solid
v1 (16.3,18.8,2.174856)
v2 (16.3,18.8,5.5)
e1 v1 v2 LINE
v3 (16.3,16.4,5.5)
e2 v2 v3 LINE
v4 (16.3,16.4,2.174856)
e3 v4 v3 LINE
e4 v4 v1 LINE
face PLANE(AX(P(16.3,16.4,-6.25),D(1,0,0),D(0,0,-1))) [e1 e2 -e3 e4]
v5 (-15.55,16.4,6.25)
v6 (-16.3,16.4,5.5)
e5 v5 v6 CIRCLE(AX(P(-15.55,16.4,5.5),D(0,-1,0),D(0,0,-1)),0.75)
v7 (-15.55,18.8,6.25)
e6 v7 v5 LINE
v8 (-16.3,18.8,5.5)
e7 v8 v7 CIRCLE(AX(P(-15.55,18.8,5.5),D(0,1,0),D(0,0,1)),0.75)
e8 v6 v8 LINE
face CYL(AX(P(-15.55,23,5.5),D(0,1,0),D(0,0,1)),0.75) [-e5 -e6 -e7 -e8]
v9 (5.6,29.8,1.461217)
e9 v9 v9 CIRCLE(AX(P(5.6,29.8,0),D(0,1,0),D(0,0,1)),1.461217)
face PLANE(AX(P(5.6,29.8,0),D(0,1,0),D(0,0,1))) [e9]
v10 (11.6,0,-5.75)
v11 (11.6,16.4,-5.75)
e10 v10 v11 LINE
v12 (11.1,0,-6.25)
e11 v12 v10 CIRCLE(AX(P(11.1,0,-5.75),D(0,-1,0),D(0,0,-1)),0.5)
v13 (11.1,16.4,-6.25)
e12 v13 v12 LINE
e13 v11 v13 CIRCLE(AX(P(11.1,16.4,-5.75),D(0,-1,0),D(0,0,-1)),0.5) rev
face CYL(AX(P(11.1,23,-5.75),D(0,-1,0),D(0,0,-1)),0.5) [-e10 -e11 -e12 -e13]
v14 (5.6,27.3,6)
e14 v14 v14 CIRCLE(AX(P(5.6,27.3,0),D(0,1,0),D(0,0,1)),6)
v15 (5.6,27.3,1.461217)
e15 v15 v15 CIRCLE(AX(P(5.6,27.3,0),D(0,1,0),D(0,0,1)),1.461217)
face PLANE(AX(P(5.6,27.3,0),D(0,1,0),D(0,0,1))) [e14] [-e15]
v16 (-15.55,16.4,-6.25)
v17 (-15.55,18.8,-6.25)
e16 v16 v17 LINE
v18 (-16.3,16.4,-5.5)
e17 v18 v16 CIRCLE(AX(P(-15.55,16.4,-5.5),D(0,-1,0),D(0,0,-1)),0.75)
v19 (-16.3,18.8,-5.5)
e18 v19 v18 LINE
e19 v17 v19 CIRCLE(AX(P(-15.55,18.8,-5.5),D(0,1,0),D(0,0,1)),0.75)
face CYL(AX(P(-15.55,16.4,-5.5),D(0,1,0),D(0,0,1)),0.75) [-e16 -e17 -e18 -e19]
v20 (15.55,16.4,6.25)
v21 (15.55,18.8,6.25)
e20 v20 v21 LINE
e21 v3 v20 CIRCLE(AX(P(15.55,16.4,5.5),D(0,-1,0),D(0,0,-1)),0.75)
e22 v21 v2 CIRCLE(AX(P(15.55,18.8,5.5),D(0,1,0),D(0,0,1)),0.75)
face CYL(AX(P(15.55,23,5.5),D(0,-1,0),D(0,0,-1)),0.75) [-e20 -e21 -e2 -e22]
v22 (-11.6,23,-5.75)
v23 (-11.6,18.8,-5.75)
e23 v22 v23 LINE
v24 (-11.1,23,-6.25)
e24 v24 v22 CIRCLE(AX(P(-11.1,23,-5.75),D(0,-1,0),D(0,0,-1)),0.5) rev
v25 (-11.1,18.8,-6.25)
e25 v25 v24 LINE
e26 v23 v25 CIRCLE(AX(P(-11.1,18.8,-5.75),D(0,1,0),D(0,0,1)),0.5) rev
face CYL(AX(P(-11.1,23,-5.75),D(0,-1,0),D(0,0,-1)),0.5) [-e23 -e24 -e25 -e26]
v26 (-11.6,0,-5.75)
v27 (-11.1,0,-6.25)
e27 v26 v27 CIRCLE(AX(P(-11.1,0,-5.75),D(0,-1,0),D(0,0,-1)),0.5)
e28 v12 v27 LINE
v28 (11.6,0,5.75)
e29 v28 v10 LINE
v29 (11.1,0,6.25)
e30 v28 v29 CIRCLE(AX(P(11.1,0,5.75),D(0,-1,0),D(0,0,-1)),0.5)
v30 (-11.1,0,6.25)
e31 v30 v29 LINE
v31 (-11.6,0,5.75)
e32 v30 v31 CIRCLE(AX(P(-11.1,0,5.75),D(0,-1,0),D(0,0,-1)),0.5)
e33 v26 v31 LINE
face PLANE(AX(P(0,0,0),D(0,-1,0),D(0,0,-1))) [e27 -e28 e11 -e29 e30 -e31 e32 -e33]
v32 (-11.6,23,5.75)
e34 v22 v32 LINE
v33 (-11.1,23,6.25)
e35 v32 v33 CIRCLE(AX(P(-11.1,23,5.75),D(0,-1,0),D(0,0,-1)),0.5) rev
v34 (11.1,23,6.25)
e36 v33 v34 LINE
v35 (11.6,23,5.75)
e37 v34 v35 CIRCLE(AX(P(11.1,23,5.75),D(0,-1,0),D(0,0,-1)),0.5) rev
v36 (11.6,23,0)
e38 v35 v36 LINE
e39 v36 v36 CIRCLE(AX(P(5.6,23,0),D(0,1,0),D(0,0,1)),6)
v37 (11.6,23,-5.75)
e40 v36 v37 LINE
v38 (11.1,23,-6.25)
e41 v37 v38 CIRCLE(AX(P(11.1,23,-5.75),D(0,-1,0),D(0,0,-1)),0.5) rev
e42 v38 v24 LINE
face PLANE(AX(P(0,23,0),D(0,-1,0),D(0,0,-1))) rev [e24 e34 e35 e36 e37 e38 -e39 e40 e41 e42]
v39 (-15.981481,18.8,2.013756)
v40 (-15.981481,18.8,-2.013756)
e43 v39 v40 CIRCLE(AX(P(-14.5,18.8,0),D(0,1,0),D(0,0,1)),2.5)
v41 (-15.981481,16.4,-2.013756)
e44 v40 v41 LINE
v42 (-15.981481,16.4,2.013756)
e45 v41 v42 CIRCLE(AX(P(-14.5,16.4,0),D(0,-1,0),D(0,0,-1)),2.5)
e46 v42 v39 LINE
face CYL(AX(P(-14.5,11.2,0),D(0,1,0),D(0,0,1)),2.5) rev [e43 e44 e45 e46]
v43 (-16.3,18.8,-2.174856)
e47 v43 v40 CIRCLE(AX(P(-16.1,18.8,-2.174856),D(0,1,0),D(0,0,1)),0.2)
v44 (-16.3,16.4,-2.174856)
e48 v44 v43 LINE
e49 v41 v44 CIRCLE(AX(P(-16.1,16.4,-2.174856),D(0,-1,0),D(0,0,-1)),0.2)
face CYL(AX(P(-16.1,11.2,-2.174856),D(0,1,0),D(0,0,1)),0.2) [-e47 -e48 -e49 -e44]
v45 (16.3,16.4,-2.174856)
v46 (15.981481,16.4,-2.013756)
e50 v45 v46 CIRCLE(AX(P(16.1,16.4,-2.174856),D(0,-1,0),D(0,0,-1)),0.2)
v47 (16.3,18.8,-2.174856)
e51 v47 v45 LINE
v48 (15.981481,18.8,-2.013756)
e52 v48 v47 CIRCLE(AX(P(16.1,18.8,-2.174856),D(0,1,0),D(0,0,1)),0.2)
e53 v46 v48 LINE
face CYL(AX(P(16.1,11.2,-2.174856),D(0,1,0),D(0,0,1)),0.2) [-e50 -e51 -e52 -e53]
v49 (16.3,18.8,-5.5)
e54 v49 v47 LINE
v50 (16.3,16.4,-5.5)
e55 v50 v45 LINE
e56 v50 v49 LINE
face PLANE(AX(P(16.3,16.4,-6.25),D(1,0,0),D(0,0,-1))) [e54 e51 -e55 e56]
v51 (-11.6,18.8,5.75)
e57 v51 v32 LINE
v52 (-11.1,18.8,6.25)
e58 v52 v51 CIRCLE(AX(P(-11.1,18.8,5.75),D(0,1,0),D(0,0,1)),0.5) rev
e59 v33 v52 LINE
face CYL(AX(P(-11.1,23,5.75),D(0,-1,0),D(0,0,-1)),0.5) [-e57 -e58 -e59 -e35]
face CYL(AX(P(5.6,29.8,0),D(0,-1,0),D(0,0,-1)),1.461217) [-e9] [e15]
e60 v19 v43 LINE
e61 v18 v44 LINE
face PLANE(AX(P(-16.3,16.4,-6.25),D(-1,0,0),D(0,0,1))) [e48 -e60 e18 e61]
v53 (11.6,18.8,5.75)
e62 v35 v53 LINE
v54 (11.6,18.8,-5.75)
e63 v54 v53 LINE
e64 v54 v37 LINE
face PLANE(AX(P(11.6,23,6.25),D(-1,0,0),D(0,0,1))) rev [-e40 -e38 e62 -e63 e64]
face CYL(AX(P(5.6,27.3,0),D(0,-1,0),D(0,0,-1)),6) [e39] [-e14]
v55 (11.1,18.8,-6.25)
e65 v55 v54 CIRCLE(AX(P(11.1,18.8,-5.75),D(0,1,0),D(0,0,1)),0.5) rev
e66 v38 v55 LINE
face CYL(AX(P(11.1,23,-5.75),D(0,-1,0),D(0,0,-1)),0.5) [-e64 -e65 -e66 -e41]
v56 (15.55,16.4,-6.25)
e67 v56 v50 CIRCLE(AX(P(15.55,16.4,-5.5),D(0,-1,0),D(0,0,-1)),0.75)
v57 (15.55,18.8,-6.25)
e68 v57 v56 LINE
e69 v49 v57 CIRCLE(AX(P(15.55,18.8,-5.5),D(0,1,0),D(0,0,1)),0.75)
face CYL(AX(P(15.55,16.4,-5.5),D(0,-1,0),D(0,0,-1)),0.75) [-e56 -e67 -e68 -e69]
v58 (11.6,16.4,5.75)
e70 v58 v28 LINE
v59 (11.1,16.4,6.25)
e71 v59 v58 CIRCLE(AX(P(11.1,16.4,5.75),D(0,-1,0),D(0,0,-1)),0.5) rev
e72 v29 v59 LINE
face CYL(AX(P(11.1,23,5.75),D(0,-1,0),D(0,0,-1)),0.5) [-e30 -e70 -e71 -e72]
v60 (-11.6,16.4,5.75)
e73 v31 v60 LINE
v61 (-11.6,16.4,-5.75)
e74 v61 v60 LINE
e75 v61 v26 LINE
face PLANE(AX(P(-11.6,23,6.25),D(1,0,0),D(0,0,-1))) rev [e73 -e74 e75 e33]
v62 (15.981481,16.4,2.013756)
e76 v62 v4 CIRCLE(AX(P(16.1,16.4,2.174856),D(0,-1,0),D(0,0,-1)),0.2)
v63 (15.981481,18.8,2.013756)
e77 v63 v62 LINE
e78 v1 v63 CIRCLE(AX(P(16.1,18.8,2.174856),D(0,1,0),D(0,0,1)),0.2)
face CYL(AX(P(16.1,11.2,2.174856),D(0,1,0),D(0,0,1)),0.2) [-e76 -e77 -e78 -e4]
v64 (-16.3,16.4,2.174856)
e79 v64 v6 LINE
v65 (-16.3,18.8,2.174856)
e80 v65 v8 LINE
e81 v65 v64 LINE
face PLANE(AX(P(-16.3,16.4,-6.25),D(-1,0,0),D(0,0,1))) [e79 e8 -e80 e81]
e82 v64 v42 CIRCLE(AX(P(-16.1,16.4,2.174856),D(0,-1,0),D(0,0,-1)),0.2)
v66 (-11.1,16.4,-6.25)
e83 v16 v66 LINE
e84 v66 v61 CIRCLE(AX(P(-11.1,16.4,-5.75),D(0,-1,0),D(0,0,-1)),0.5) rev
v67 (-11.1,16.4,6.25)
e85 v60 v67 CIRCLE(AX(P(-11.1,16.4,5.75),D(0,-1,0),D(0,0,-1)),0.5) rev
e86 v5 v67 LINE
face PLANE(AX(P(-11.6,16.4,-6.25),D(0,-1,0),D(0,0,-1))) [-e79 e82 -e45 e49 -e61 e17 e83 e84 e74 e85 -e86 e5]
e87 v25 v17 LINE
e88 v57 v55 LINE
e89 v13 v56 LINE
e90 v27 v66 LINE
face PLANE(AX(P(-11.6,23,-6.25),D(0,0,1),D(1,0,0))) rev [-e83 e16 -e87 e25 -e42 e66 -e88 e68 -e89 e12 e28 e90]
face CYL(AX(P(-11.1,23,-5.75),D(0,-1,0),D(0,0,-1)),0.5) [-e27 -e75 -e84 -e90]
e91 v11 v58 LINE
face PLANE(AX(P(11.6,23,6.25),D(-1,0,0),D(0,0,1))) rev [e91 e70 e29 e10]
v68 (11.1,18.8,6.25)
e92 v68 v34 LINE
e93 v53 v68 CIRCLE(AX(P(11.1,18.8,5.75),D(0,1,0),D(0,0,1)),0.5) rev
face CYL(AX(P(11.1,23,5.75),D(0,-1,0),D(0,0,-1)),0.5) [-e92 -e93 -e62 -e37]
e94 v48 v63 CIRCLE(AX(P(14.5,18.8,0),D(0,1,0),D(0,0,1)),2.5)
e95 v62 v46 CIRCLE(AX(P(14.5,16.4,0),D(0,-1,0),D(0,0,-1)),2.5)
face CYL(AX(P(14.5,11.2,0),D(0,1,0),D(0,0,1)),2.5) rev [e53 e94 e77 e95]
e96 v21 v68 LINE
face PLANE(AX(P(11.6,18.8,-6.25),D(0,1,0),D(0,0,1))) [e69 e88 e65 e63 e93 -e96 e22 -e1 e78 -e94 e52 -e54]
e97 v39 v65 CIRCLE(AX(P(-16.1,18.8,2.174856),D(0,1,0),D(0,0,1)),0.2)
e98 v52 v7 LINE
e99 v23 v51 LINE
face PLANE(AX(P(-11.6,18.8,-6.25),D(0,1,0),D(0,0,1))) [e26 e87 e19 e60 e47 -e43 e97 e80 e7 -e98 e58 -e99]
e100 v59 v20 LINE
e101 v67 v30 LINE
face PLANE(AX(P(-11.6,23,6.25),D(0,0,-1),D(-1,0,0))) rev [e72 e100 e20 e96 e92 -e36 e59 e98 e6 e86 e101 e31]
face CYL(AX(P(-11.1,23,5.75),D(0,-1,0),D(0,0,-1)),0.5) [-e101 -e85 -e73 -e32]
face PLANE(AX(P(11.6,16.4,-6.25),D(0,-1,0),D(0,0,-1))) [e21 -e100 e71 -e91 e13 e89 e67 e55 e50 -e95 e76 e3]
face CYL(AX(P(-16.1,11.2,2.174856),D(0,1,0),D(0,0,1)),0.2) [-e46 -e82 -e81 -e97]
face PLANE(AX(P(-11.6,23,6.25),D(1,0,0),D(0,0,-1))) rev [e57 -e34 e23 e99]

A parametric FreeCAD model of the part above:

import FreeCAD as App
import Part
import Sketcher


def edges_at(feature, points):
    """Names of the edges that pass closest to the given points."""
    edges = feature.Shape.Edges
    near = lambda p: min(range(len(edges)), key=lambda i: edges[i].distToShape(Part.Vertex(*p))[0])
    return sorted({f"Edge{near(p) + 1}" for p in points})

doc = App.newDocument("Part")
body = doc.addObject("PartDesign::Body", "Body")

# Sketch on XZ plane
sketch1 = doc.addObject("Sketcher::SketchObject", "Sketch")
body.addObject(sketch1)
sketch1.AttachmentSupport = (doc.XZ_Plane, [""])
sketch1.MapMode = "FlatFace"
sketch1.addGeometry([
    Part.LineSegment(App.Vector(-12, -6, 0), App.Vector(-12, 6, 0)),
    Part.LineSegment(App.Vector(-12, 6, 0), App.Vector(12, 6, 0)),
    Part.LineSegment(App.Vector(12, 6, 0), App.Vector(12, -6, 0)),
    Part.LineSegment(App.Vector(12, -6, 0), App.Vector(-12, -6, 0)),
], False)
sketch1.addConstraint([
    Sketcher.Constraint("Coincident", 0, 2, 1, 1),
    Sketcher.Constraint("Coincident", 1, 2, 2, 1),
    Sketcher.Constraint("Coincident", 2, 2, 3, 1),
    Sketcher.Constraint("Coincident", 3, 2, 0, 1),
    Sketcher.Constraint("Vertical", 0),
    Sketcher.Constraint("Horizontal", 1),
    Sketcher.Constraint("Vertical", 2),
    Sketcher.Constraint("Horizontal", 3),
    Sketcher.Constraint("Symmetric", 0, 2, 2, 2, -1, 1),
    Sketcher.Constraint("DistanceX", 1, 1, 1, 2, 23.2),
    Sketcher.Constraint("DistanceY", 0, 1, 0, 2, 12.5),
])
pad1 = doc.addObject("PartDesign::Pad", "Pad")
body.addObject(pad1)
pad1.Profile = sketch1
pad1.Length = 23
pad1.Reversed = True

# Sketch on XY plane
sketch2 = doc.addObject("Sketcher::SketchObject", "Sketch001")
body.addObject(sketch2)
sketch2.AttachmentSupport = (doc.XY_Plane, [""])
sketch2.MapMode = "FlatFace"
sketch2.AttachmentOffset = App.Placement(App.Vector(0, 0, 6.25), App.Rotation())
sketch2.addGeometry([
    Part.LineSegment(App.Vector(11.6, 18.8, 0), App.Vector(11.6, 16.4, 0)),  # 0
    Part.LineSegment(App.Vector(11.6, 16.4, 0), App.Vector(16.3, 16.4, 0)),  # 1
    Part.LineSegment(App.Vector(16.3, 16.4, 0), App.Vector(16.3, 18.8, 0)),  # 2
    Part.LineSegment(App.Vector(16.3, 18.8, 0), App.Vector(11.6, 18.8, 0)),  # 3
    Part.LineSegment(App.Vector(-16.3, 18.8, 0), App.Vector(-16.3, 16.4, 0)),  # 4
    Part.LineSegment(App.Vector(-16.3, 16.4, 0), App.Vector(-11.6, 16.4, 0)),  # 5
    Part.LineSegment(App.Vector(-11.6, 16.4, 0), App.Vector(-11.6, 18.8, 0)),  # 6
    Part.LineSegment(App.Vector(-11.6, 18.8, 0), App.Vector(-16.3, 18.8, 0)),  # 7
], False)
sketch2.addConstraint([
    Sketcher.Constraint("Coincident", 0, 2, 1, 1),
    Sketcher.Constraint("Coincident", 1, 2, 2, 1),
    Sketcher.Constraint("Coincident", 2, 2, 3, 1),
    Sketcher.Constraint("Coincident", 3, 2, 0, 1),
    Sketcher.Constraint("Coincident", 4, 2, 5, 1),
    Sketcher.Constraint("Coincident", 5, 2, 6, 1),
    Sketcher.Constraint("Coincident", 6, 2, 7, 1),
    Sketcher.Constraint("Coincident", 7, 2, 4, 1),
    Sketcher.Constraint("Vertical", 0),
    Sketcher.Constraint("Horizontal", 1),
    Sketcher.Constraint("Vertical", 2),
    Sketcher.Constraint("Horizontal", 3),
    Sketcher.Constraint("Vertical", 4),
    Sketcher.Constraint("Horizontal", 5),
    Sketcher.Constraint("Vertical", 6),
    Sketcher.Constraint("Horizontal", 7),
    Sketcher.Constraint("Symmetric", 1, 2, 4, 2, -2),
    Sketcher.Constraint("Symmetric", 3, 2, 6, 2, -2),
    Sketcher.Constraint("DistanceX", 1, 1, 1, 2, 4.7),
    Sketcher.Constraint("DistanceY", 0, 2, 0, 1, 2.4),
    Sketcher.Constraint("DistanceX", -1, 1, 0, 2, 11.6),
    Sketcher.Constraint("DistanceY", -1, 1, 0, 2, 16.4),
])
pad2 = doc.addObject("PartDesign::Pad", "Pad001")
body.addObject(pad2)
pad2.Profile = sketch2
pad2.Length = 12.5
pad2.Reversed = True
doc.recompute()

fillet = doc.addObject("PartDesign::Fillet", "Fillet")
body.addObject(fillet)
fillet.Base = (pad2, edges_at(pad2, [
    (16.3, 17.6, -6.25),
    (16.3, 17.6, 6.25),
    (-16.3, 17.6, -6.25),
    (-16.3, 17.6, 6.25),
]))
fillet.Radius = 0.75

# Sketch on XZ plane
sketch3 = doc.addObject("Sketcher::SketchObject", "Sketch002")
body.addObject(sketch3)
sketch3.AttachmentSupport = (doc.XZ_Plane, [""])
sketch3.MapMode = "FlatFace"
sketch3.AttachmentOffset = App.Placement(App.Vector(0, 0, -23), App.Rotation())
sketch3.addGeometry([
    Part.Circle(App.Vector(-14.5, 0, 0), App.Vector(0, 0, 1), 2.5),
    Part.Circle(App.Vector(14.5, 0, 0), App.Vector(0, 0, 1), 2.5),
], False)
sketch3.addConstraint([
    Sketcher.Constraint("Equal", 0, 1),
    Sketcher.Constraint("Symmetric", 0, 3, 1, 3, -1, 1),
    Sketcher.Constraint("PointOnObject", 0, 3, -1),
    Sketcher.Constraint("Diameter", 0, 5.0),
    Sketcher.Constraint("DistanceX", 0, 3, 1, 3, 29.0),
])
pocket1 = doc.addObject("PartDesign::Pocket", "Pocket")
body.addObject(pocket1)
pocket1.Profile = sketch3
pocket1.Length = 11.8
pocket1.Reversed = True
doc.recompute()

fillet2 = doc.addObject("PartDesign::Fillet", "Fillet001")
body.addObject(fillet2)
fillet2.Base = (pocket1, edges_at(pocket1, [
    (-16.3, 17.6, -1.735),
    (-16.3, 17.6, 1.735),
    (16.3, 17.6, -1.735),
    (16.3, 17.6, 1.735),
]))
fillet2.Radius = 0.2
doc.recompute()

fillet3 = doc.addObject("PartDesign::Fillet", "Fillet002")
body.addObject(fillet3)
fillet3.Base = (fillet2, edges_at(fillet2, [
    (11.6, 8.2, -6.25),
    (11.6, 8.2, 6.25),
    (-11.6, 8.2, 6.25),
    (-11.6, 8.2, -6.25),
    (11.6, 20.9, 6.25),
    (-11.6, 20.9, 6.25),
    (-11.6, 20.9, -6.25),
    (11.6, 20.9, -6.25),
]))
fillet3.Radius = 0.5

# Sketch on XZ plane
sketch4 = doc.addObject("Sketcher::SketchObject", "Sketch003")
body.addObject(sketch4)
sketch4.AttachmentSupport = (doc.XZ_Plane, [""])
sketch4.MapMode = "FlatFace"
sketch4.AttachmentOffset = App.Placement(App.Vector(0, 0, -23), App.Rotation())
sketch4.addGeometry(Part.Circle(App.Vector(6, 0, 0), App.Vector(0, 0, 1), 6), False)
sketch4.addConstraint([
    Sketcher.Constraint("PointOnObject", 0, 3, -1),
    Sketcher.Constraint("Diameter", 0, 12.0),
    Sketcher.Constraint("DistanceX", -1, 1, 0, 3, 5.6),
])
pad3 = doc.addObject("PartDesign::Pad", "Pad002")
body.addObject(pad3)
pad3.Profile = sketch4
pad3.Length = 4.3
pad3.Reversed = True

# Sketch on XZ plane
sketch5 = doc.addObject("Sketcher::SketchObject", "Sketch004")
body.addObject(sketch5)
sketch5.AttachmentSupport = (doc.XZ_Plane, [""])
sketch5.MapMode = "FlatFace"
sketch5.AttachmentOffset = App.Placement(App.Vector(0, 0, -27.3), App.Rotation())
sketch5.addGeometry(Part.Circle(App.Vector(5.6, 0, 0), App.Vector(0, 0, 1), 1.5), False)
sketch5.addConstraint([
    Sketcher.Constraint("PointOnObject", 0, 3, -1),
    Sketcher.Constraint("DistanceX", -1, 1, 0, 3, 5.6),
    Sketcher.Constraint("Diameter", 0, 2.922435),
])
pad4 = doc.addObject("PartDesign::Pad", "Pad003")
body.addObject(pad4)
pad4.Profile = sketch5
pad4.Length = 2.5
pad4.Reversed = True

doc.recompute()
